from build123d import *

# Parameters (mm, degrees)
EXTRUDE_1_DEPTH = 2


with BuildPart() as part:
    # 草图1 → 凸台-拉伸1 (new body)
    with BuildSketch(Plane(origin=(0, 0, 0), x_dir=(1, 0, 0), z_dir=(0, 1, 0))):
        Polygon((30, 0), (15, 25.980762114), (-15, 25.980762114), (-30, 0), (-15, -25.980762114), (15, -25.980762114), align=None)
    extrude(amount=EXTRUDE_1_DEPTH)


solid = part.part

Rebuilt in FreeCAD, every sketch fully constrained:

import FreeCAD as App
import Part
import Sketcher

V = App.Vector
Q = App.Units.Quantity


def add_polygon(sketch, points):
    """Adds a closed chain of lines whose ends are joined by coincident constraints."""
    first, n = sketch.GeometryCount, len(points)
    for a, b in zip(points, points[1:] + points[:1]):
        sketch.addGeometry(Part.LineSegment(App.Vector(*a, 0), App.Vector(*b, 0)), False)
    for i in range(n):
        sketch.addConstraint(Sketcher.Constraint("Coincident", first + i, 2, first + (i + 1) % n, 1))

doc = App.newDocument("Part")
body = doc.addObject("PartDesign::Body", "Body")

# Sketch on XZ plane
sketch1 = doc.addObject("Sketcher::SketchObject", "Sketch")
body.addObject(sketch1)
sketch1.AttachmentSupport = (doc.XZ_Plane, [""])
sketch1.MapMode = "FlatFace"
add_polygon(sketch1, [(30, 0), (15, -26), (-15, -26), (-30, 0), (-15, 26), (15, 26)])  # lines 0-5
sketch1.addConstraint([
    Sketcher.Constraint("Horizontal", 1),
    Sketcher.Constraint("Horizontal", 4),
    Sketcher.Constraint("Symmetric", 0, 2, 3, 2, -1, 1),
    Sketcher.Constraint("Symmetric", 2, 2, 5, 2, -1, 1),
    Sketcher.Constraint("PointOnObject", 2, 2, -1),
    Sketcher.Constraint("Parallel", 2, 5),
    Sketcher.Constraint("Vertical", 1, 2, 3, 2),
    Sketcher.Constraint("DistanceX", 1, 2, 1, 1, Q("30 mm")),
    Sketcher.Constraint("Angle", 0, Q("-120 deg")),
    Sketcher.Constraint("Distance", 0, Q("30 mm")),
])
pad1 = doc.addObject("PartDesign::Pad", "Pad")
body.addObject(pad1)
pad1.Profile = sketch1
pad1.Length = 2
pad1.Reversed = True

doc.recompute()
